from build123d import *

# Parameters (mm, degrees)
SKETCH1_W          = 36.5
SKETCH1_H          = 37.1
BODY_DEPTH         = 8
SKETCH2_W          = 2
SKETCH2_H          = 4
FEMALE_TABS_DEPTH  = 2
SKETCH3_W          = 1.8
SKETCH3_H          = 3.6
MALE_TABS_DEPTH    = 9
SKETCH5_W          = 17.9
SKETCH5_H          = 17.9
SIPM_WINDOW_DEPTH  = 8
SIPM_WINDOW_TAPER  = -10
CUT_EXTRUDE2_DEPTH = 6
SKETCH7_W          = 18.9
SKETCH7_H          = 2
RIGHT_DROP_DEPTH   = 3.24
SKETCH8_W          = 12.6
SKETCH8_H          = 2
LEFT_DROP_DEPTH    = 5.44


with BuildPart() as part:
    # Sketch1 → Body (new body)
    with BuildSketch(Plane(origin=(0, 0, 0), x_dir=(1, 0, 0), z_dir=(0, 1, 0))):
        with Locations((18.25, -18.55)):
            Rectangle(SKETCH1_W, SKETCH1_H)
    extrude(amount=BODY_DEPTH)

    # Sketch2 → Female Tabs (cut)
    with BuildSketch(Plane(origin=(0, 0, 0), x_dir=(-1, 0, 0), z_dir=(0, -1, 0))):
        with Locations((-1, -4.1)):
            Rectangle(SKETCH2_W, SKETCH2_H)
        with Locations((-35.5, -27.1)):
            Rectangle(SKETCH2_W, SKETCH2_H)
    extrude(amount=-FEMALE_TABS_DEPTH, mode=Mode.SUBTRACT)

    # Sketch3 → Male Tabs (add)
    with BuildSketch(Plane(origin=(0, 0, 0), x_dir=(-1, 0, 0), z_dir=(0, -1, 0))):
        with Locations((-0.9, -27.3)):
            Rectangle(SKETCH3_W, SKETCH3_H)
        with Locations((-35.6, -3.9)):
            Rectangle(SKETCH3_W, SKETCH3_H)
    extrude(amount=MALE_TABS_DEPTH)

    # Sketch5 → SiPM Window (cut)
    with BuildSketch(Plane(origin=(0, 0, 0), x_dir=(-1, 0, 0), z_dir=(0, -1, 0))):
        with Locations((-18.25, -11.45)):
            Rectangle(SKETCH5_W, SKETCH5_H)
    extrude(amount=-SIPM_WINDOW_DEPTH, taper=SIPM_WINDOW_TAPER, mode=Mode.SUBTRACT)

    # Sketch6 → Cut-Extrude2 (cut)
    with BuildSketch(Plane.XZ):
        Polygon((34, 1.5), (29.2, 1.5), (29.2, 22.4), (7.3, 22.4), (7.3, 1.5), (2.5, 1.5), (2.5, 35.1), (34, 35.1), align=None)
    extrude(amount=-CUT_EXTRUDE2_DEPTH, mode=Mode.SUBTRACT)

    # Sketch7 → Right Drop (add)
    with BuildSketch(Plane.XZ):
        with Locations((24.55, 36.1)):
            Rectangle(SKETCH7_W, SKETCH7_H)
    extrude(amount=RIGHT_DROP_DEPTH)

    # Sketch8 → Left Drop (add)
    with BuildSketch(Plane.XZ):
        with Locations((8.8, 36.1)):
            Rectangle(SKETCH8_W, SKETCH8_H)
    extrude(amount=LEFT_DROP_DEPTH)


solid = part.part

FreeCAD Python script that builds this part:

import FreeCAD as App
import Part
import Sketcher
from FreeCAD import Vector


def add_polygon(sketch, points):
    """Adds a closed chain of lines whose ends are joined by coincident constraints."""
    first, n = sketch.GeometryCount, len(points)
    for a, b in zip(points, points[1:] + points[:1]):
        sketch.addGeometry(Part.LineSegment(App.Vector(*a, 0), App.Vector(*b, 0)), False)
    for i in range(n):
        sketch.addConstraint(Sketcher.Constraint("Coincident", first + i, 2, first + (i + 1) % n, 1))

doc = App.newDocument("Part")
body = doc.addObject("PartDesign::Body", "Body")

sketch1 = doc.addObject("Sketcher::SketchObject", "Sketch")
body.addObject(sketch1)
sketch1.AttachmentSupport = (doc.XZ_Plane, [""])
sketch1.MapMode = "FlatFace"
add_polygon(sketch1, [(0, 0), (0, 37), (36, 37), (36, 0)])
sketch1.addConstraint([
    Sketcher.Constraint("Vertical", 0),
    Sketcher.Constraint("Horizontal", 1),
    Sketcher.Constraint("Vertical", 2),
    Sketcher.Constraint("Horizontal", 3),
    Sketcher.Constraint("Coincident", 3, 2, -1, 1),
    Sketcher.Constraint("DistanceX", 1, 1, 1, 2, 36.5),
    Sketcher.Constraint("DistanceY", 0, 1, 0, 2, 37.1),
])
pad1 = doc.addObject("PartDesign::Pad", "Pad")
body.addObject(pad1)
pad1.Profile = sketch1
pad1.Length = 8
pad1.Reversed = True

sketch2 = doc.addObject("Sketcher::SketchObject", "Sketch001")
body.addObject(sketch2)
sketch2.AttachmentSupport = (doc.XZ_Plane, [""])
sketch2.MapMode = "FlatFace"
add_polygon(sketch2, [(2, 2.1), (2, 6.1), (0, 6.1), (0, 2.1)])
add_polygon(sketch2, [(36.5, 25.1), (36.5, 29.1), (34.5, 29.1), (34.5, 25.1)])
sketch2.addConstraint([
    Sketcher.Constraint("Vertical", 0),
    Sketcher.Constraint("Horizontal", 1),
    Sketcher.Constraint("Vertical", 2),
    Sketcher.Constraint("Horizontal", 3),
    Sketcher.Constraint("Vertical", 4),
    Sketcher.Constraint("Horizontal", 5),
    Sketcher.Constraint("Vertical", 6),
    Sketcher.Constraint("Horizontal", 7),
    Sketcher.Constraint("PointOnObject", 1, 2, -2),
    Sketcher.Constraint("Equal", 3, 5),
    Sketcher.Constraint("Equal", 2, 4),
    Sketcher.Constraint("DistanceX", 1, 2, 1, 1, 2.0),
    Sketcher.Constraint("DistanceY", 0, 1, 0, 2, 4.0),
    Sketcher.Constraint("DistanceY", 0, 2, 4, 2, 23.0),
    Sketcher.Constraint("DistanceY", -1, 1, 0, 2, 6.1),
    Sketcher.Constraint("DistanceX", -1, 1, 4, 2, 36.5),
])
pocket1 = doc.addObject("PartDesign::Pocket", "Pocket")
body.addObject(pocket1)
pocket1.Profile = sketch2
pocket1.Length = 2

sketch3 = doc.addObject("Sketcher::SketchObject", "Sketch002")
body.addObject(sketch3)
sketch3.AttachmentSupport = (doc.XZ_Plane, [""])
sketch3.MapMode = "FlatFace"
add_polygon(sketch3, [(1.8, 25.5), (1.8, 29.1), (0, 29.1), (0, 25.5)])
add_polygon(sketch3, [(36.5, 2.1), (36.5, 5.7), (34.7, 5.7), (34.7, 2.1)])
sketch3.addConstraint([
    Sketcher.Constraint("Vertical", 0),
    Sketcher.Constraint("Horizontal", 1),
    Sketcher.Constraint("Vertical", 2),
    Sketcher.Constraint("Horizontal", 3),
    Sketcher.Constraint("Vertical", 4),
    Sketcher.Constraint("Horizontal", 5),
    Sketcher.Constraint("Vertical", 6),
    Sketcher.Constraint("Horizontal", 7),
    Sketcher.Constraint("PointOnObject", 1, 2, -2),
    Sketcher.Constraint("Equal", 3, 5),
    Sketcher.Constraint("Equal", 2, 4),
    Sketcher.Constraint("DistanceX", 1, 2, 1, 1, 1.8),
    Sketcher.Constraint("DistanceY", 0, 1, 0, 2, 3.6),
    Sketcher.Constraint("DistanceY", 6, 2, 0, 2, 27.0),
    Sketcher.Constraint("DistanceY", -1, 1, 0, 2, 29.1),
    Sketcher.Constraint("DistanceX", -1, 1, 4, 2, 36.5),
])
pad2 = doc.addObject("PartDesign::Pad", "Pad001")
body.addObject(pad2)
pad2.Profile = sketch3
pad2.Length = 9

sketch4 = doc.addObject("Sketcher::SketchObject", "Sketch003")
body.addObject(sketch4)
sketch4.AttachmentSupport = (doc.XZ_Plane, [""])
sketch4.MapMode = "FlatFace"
add_polygon(sketch4, [(27, 2), (27, 20), (9, 20), (9, 2)])
sketch4.addConstraint([
    Sketcher.Constraint("Vertical", 0),
    Sketcher.Constraint("Horizontal", 1),
    Sketcher.Constraint("Vertical", 2),
    Sketcher.Constraint("Horizontal", 3),
    Sketcher.Constraint("Equal", 3, 0),
    Sketcher.Constraint("DistanceX", 1, 2, 1, 1, 17.9),
    Sketcher.Constraint("DistanceX", -1, 1, 0, 2, 27.2),
    Sketcher.Constraint("DistanceY", -1, 1, 0, 2, 20.4),
])
pocket2 = doc.addObject("PartDesign::Pocket", "Pocket001")
body.addObject(pocket2)
pocket2.Profile = sketch4
pocket2.Length = 8
pocket2.TaperAngle = 10

sketch5 = doc.addObject("Sketcher::SketchObject", "Sketch004")
body.addObject(sketch5)
sketch5.AttachmentSupport = (doc.XZ_Plane, [""])
sketch5.MapMode = "FlatFace"
add_polygon(sketch5, [(29.2, 1.5), (34, 1.5), (34, 35.1), (2.5, 35.1), (2.5, 1.5), (7.3, 1.5), (7.3, 22.4), (29.2, 22.4)])
sketch5.addConstraint([
    Sketcher.Constraint("Horizontal", 0),
    Sketcher.Constraint("Vertical", 1),
    Sketcher.Constraint("Horizontal", 2),
    Sketcher.Constraint("Vertical", 3),
    Sketcher.Constraint("Horizontal", 4),
    Sketcher.Constraint("Vertical", 5),
    Sketcher.Constraint("Horizontal", 6),
    Sketcher.Constraint("Vertical", 7),
    Sketcher.Constraint("Horizontal", 0, 2, 3, 2),
    Sketcher.Constraint("Equal", 0, 4),
    Sketcher.Constraint("DistanceX", 0, 1, 0, 2, 4.8),
    Sketcher.Constraint("DistanceX", 2, 2, 2, 1, 31.5),
    Sketcher.Constraint("DistanceY", 1, 1, 1, 2, 33.6),
    Sketcher.Constraint("DistanceY", 5, 1, 5, 2, 20.9),
    Sketcher.Constraint("DistanceX", -1, 1, 0, 2, 34.0),
    Sketcher.Constraint("DistanceY", -1, 1, 0, 2, 1.5),
])
pocket3 = doc.addObject("PartDesign::Pocket", "Pocket002")
body.addObject(pocket3)
pocket3.Profile = sketch5
pocket3.Length = 6

sketch6 = doc.addObject("Sketcher::SketchObject", "Sketch005")
body.addObject(sketch6)
sketch6.AttachmentSupport = (doc.XZ_Plane, [""])
sketch6.MapMode = "FlatFace"
add_polygon(sketch6, [(15.1, 37.1), (15.1, 35.1), (34, 35.1), (34, 37.1)])
sketch6.addConstraint([
    Sketcher.Constraint("Vertical", 0),
    Sketcher.Constraint("Horizontal", 1),
    Sketcher.Constraint("Vertical", 2),
    Sketcher.Constraint("Horizontal", 3),
    Sketcher.Constraint("DistanceY", 0, 2, 0, 1, 2.0),
    Sketcher.Constraint("DistanceX", 1, 1, 1, 2, 18.9),
    Sketcher.Constraint("DistanceX", -1, 1, 1, 2, 34.0),
    Sketcher.Constraint("DistanceY", -1, 1, 0, 2, 35.1),
])
pad3 = doc.addObject("PartDesign::Pad", "Pad002")
body.addObject(pad3)
pad3.Profile = sketch6
pad3.Length = 3.24

sketch7 = doc.addObject("Sketcher::SketchObject", "Sketch006")
body.addObject(sketch7)
sketch7.AttachmentSupport = (doc.XZ_Plane, [""])
sketch7.MapMode = "FlatFace"
add_polygon(sketch7, [(2.5, 37.1), (2.5, 35.1), (15.1, 35.1), (15.1, 37.1)])
sketch7.addConstraint([
    Sketcher.Constraint("Vertical", 0),
    Sketcher.Constraint("Horizontal", 1),
    Sketcher.Constraint("Vertical", 2),
    Sketcher.Constraint("Horizontal", 3),
    Sketcher.Constraint("DistanceY", 0, 2, 0, 1, 2.0),
    Sketcher.Constraint("DistanceX", 1, 1, 1, 2, 12.6),
    Sketcher.Constraint("DistanceX", -1, 1, 0, 2, 2.5),
    Sketcher.Constraint("DistanceY", -1, 1, 0, 2, 35.1),
])
pad4 = doc.addObject("PartDesign::Pad", "Pad003")
body.addObject(pad4)
pad4.Profile = sketch7
pad4.Length = 5.44

doc.recompute()
